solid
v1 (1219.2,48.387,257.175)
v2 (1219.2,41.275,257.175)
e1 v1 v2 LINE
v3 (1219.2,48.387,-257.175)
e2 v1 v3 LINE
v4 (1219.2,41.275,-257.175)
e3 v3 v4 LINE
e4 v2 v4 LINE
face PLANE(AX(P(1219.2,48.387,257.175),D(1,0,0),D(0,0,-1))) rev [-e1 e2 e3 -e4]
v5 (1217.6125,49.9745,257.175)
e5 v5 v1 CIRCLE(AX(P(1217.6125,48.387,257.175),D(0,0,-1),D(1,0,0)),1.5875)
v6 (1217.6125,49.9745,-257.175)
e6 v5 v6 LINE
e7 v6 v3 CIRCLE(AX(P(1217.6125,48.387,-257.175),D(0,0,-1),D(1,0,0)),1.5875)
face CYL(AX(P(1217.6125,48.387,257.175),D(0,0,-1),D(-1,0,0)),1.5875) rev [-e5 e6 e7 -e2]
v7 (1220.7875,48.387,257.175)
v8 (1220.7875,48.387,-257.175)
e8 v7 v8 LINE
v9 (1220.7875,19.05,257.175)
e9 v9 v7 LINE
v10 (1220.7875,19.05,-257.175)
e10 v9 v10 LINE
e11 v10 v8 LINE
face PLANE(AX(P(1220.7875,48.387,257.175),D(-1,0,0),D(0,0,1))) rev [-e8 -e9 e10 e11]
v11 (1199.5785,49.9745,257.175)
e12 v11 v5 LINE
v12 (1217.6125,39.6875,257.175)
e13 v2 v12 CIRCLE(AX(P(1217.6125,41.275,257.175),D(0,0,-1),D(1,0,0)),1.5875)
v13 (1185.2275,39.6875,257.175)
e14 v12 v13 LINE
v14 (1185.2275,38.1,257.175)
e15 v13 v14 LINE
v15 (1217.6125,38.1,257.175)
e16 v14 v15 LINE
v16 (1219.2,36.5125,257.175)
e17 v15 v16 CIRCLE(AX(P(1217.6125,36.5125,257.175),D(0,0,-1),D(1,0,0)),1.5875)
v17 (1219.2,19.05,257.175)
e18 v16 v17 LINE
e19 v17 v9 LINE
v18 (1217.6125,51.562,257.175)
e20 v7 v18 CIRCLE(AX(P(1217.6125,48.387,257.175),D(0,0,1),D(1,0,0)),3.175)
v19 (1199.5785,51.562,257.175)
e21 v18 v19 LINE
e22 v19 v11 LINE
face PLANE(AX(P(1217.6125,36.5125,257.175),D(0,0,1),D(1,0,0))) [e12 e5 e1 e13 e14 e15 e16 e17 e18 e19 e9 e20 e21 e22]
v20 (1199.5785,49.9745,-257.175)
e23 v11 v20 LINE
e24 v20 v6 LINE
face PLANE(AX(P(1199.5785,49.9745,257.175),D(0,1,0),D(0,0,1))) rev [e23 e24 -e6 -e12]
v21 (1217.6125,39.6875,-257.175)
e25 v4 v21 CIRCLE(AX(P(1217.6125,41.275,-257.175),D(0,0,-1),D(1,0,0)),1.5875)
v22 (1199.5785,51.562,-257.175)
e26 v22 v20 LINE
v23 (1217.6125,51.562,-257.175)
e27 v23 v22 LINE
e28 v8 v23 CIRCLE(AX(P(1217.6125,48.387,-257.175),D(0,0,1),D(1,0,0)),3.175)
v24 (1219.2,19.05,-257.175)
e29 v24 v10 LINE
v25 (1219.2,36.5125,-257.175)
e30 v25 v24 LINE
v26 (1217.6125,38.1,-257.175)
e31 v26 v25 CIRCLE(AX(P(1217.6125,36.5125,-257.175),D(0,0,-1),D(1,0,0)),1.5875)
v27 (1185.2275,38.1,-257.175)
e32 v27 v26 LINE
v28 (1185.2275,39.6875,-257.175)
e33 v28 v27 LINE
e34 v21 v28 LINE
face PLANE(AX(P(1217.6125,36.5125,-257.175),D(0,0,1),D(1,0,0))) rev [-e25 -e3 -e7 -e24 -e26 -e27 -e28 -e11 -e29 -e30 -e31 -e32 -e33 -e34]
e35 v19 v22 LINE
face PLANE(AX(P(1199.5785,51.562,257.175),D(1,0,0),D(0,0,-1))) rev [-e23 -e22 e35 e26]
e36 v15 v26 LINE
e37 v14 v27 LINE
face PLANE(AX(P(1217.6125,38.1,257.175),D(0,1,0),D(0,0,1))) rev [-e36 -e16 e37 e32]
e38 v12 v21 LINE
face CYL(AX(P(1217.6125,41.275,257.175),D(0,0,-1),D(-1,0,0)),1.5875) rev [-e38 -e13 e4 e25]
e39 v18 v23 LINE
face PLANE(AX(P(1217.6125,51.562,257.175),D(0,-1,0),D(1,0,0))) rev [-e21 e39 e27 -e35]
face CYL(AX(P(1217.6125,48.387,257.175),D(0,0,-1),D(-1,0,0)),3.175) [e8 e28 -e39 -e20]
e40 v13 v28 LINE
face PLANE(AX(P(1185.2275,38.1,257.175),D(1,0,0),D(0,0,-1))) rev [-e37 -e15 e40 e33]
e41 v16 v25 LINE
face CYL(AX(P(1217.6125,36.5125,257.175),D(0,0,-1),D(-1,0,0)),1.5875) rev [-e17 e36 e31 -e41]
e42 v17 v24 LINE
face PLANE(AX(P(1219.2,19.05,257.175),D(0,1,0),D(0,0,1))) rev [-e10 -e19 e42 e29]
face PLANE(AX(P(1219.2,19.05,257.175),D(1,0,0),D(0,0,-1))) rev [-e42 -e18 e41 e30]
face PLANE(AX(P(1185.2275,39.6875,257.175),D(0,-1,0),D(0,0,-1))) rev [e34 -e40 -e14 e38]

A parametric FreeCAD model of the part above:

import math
import FreeCAD as App
import Part
import Sketcher
from FreeCAD import Vector
Q = App.Units.Quantity

doc = App.newDocument("Part")
params = doc.addObject("Spreadsheet::Sheet", "Params")
for row, (alias, value) in enumerate([
    ("sketch1_radius", "0.125 in"),
    ("sketch1_radius2", "0.0625 in"),
    ("sketch1_width", "0.71 in"),
    ("sketch1_height", "0.28 in"),
    ("sketch1_width2", "1.275 in"),
    ("pad1_length", "20.25 in"),
], start=1):
    params.set(f"A{row}", alias)
    params.set(f"B{row}", "=" + value)
    params.setAlias(f"B{row}", alias)

body = doc.addObject("PartDesign::Body", "Body")

sketch1 = body.newObject("Sketcher::SketchObject", "Sketch")
sketch1.AttachmentSupport = (doc.getObject("XY_Plane"), [""])
sketch1.MapMode = "FlatFace"
sketch1.addGeometry(Part.LineSegment(Vector(1219.2, 36.5125, 0), Vector(1219.2, 19.05, 0)), False)
sketch1.addGeometry(Part.LineSegment(Vector(1219.2, 19.05, 0), Vector(1220.7875, 19.05, 0)), False)
sketch1.addGeometry(Part.LineSegment(Vector(1220.7875, 19.05, 0), Vector(1220.7875, 48.387, 0)), False)
sketch1.addGeometry(Part.ArcOfCircle(Part.Circle(Vector(1217.6125, 48.387, 0), Vector(0, 0, 1), 3.175), math.radians(0), math.radians(90)), False)
sketch1.addGeometry(Part.LineSegment(Vector(1217.6125, 51.562, 0), Vector(1199.5785, 51.562, 0)), False)
sketch1.addGeometry(Part.LineSegment(Vector(1199.5785, 51.562, 0), Vector(1199.5785, 49.9745, 0)), False)
sketch1.addGeometry(Part.LineSegment(Vector(1199.5785, 49.9745, 0), Vector(1217.6125, 49.9745, 0)), False)
sketch1.addGeometry(Part.ArcOfCircle(Part.Circle(Vector(1217.6125, 48.387, 0), Vector(0, 0, 1), 1.5875), math.radians(0), math.radians(90)), False)
sketch1.addGeometry(Part.LineSegment(Vector(1219.2, 48.387, 0), Vector(1219.2, 41.275, 0)), False)
sketch1.addGeometry(Part.ArcOfCircle(Part.Circle(Vector(1217.6125, 41.275, 0), Vector(0, 0, 1), 1.5875), math.radians(-90), math.radians(0)), False)
sketch1.addGeometry(Part.LineSegment(Vector(1217.6125, 39.6875, 0), Vector(1185.2275, 39.6875, 0)), False)
sketch1.addGeometry(Part.LineSegment(Vector(1185.2275, 39.6875, 0), Vector(1185.2275, 38.1, 0)), False)
sketch1.addGeometry(Part.LineSegment(Vector(1185.2275, 38.1, 0), Vector(1217.6125, 38.1, 0)), False)
sketch1.addGeometry(Part.ArcOfCircle(Part.Circle(Vector(1217.6125, 36.5125, 0), Vector(0, 0, 1), 1.5875), math.radians(0), math.radians(90)), False)
sketch1.addConstraint(Sketcher.Constraint("Coincident", 0, 2, 1, 1))
sketch1.addConstraint(Sketcher.Constraint("Coincident", 1, 2, 2, 1))
sketch1.addConstraint(Sketcher.Constraint("Tangent", 2, 2, 3, 1))
sketch1.addConstraint(Sketcher.Constraint("Tangent", 3, 2, 4, 1))
sketch1.addConstraint(Sketcher.Constraint("Coincident", 4, 2, 5, 1))
sketch1.addConstraint(Sketcher.Constraint("Coincident", 5, 2, 6, 1))
sketch1.addConstraint(Sketcher.Constraint("Tangent", 6, 2, 7, 2))
sketch1.addConstraint(Sketcher.Constraint("Tangent", 7, 1, 8, 1))
sketch1.addConstraint(Sketcher.Constraint("Tangent", 8, 2, 9, 2))
sketch1.addConstraint(Sketcher.Constraint("Tangent", 9, 1, 10, 1))
sketch1.addConstraint(Sketcher.Constraint("Coincident", 10, 2, 11, 1))
sketch1.addConstraint(Sketcher.Constraint("Coincident", 11, 2, 12, 1))
sketch1.addConstraint(Sketcher.Constraint("Tangent", 12, 2, 13, 2))
sketch1.addConstraint(Sketcher.Constraint("Tangent", 13, 1, 0, 1))
sketch1.addConstraint(Sketcher.Constraint("Vertical", 0))
sketch1.addConstraint(Sketcher.Constraint("Horizontal", 1))
sketch1.addConstraint(Sketcher.Constraint("Vertical", 2))
sketch1.addConstraint(Sketcher.Constraint("Horizontal", 4))
sketch1.addConstraint(Sketcher.Constraint("Vertical", 5))
sketch1.addConstraint(Sketcher.Constraint("Horizontal", 6))
sketch1.addConstraint(Sketcher.Constraint("Vertical", 8))
sketch1.addConstraint(Sketcher.Constraint("Horizontal", 10))
sketch1.addConstraint(Sketcher.Constraint("Vertical", 11))
sketch1.addConstraint(Sketcher.Constraint("Horizontal", 12))
sketch1.addConstraint(Sketcher.Constraint("Coincident", 7, 3, 3, 3))
sketch1.addConstraint(Sketcher.Constraint("Equal", 7, 9))
sketch1.addConstraint(Sketcher.Constraint("Equal", 9, 13))
sketch1.addConstraint(Sketcher.Constraint("Vertical", 9, 3, 13, 3))
sketch1.addConstraint(Sketcher.Constraint("Equal", 5, 11))
sketch1.addConstraint(Sketcher.Constraint("DistanceX", -1, 1, 0, 2, Q("48 in")))
sketch1.addConstraint(Sketcher.Constraint("Radius", 3, Q("0.125 in")))
sketch1.addConstraint(Sketcher.Constraint("Radius", 7, Q("0.0625 in")))
sketch1.addConstraint(Sketcher.Constraint("DistanceX", 4, 2, 4, 1, Q("0.71 in")))
sketch1.addConstraint(Sketcher.Constraint("DistanceY", 8, 2, 8, 1, Q("0.28 in")))
sketch1.addConstraint(Sketcher.Constraint("DistanceY", -1, 1, 11, 2, Q("1.5 in")))
sketch1.addConstraint(Sketcher.Constraint("DistanceX", 10, 2, 10, 1, Q("1.275 in")))
sketch1.addConstraint(Sketcher.Constraint("DistanceY", 0, 2, 0, 1, Q("0.6875 in")))
sketch1.setExpression("Constraints[30]", "Params.sketch1_radius")
sketch1.setExpression("Constraints[31]", "Params.sketch1_radius2")
sketch1.setExpression("Constraints[32]", "Params.sketch1_width")
sketch1.setExpression("Constraints[33]", "Params.sketch1_height")
sketch1.setExpression("Constraints[35]", "Params.sketch1_width2")
pad1 = body.newObject("PartDesign::Pad", "Pad")
pad1.Profile = sketch1
pad1.setExpression("Length", "Params.pad1_length")
pad1.Midplane = True

doc.recompute()
